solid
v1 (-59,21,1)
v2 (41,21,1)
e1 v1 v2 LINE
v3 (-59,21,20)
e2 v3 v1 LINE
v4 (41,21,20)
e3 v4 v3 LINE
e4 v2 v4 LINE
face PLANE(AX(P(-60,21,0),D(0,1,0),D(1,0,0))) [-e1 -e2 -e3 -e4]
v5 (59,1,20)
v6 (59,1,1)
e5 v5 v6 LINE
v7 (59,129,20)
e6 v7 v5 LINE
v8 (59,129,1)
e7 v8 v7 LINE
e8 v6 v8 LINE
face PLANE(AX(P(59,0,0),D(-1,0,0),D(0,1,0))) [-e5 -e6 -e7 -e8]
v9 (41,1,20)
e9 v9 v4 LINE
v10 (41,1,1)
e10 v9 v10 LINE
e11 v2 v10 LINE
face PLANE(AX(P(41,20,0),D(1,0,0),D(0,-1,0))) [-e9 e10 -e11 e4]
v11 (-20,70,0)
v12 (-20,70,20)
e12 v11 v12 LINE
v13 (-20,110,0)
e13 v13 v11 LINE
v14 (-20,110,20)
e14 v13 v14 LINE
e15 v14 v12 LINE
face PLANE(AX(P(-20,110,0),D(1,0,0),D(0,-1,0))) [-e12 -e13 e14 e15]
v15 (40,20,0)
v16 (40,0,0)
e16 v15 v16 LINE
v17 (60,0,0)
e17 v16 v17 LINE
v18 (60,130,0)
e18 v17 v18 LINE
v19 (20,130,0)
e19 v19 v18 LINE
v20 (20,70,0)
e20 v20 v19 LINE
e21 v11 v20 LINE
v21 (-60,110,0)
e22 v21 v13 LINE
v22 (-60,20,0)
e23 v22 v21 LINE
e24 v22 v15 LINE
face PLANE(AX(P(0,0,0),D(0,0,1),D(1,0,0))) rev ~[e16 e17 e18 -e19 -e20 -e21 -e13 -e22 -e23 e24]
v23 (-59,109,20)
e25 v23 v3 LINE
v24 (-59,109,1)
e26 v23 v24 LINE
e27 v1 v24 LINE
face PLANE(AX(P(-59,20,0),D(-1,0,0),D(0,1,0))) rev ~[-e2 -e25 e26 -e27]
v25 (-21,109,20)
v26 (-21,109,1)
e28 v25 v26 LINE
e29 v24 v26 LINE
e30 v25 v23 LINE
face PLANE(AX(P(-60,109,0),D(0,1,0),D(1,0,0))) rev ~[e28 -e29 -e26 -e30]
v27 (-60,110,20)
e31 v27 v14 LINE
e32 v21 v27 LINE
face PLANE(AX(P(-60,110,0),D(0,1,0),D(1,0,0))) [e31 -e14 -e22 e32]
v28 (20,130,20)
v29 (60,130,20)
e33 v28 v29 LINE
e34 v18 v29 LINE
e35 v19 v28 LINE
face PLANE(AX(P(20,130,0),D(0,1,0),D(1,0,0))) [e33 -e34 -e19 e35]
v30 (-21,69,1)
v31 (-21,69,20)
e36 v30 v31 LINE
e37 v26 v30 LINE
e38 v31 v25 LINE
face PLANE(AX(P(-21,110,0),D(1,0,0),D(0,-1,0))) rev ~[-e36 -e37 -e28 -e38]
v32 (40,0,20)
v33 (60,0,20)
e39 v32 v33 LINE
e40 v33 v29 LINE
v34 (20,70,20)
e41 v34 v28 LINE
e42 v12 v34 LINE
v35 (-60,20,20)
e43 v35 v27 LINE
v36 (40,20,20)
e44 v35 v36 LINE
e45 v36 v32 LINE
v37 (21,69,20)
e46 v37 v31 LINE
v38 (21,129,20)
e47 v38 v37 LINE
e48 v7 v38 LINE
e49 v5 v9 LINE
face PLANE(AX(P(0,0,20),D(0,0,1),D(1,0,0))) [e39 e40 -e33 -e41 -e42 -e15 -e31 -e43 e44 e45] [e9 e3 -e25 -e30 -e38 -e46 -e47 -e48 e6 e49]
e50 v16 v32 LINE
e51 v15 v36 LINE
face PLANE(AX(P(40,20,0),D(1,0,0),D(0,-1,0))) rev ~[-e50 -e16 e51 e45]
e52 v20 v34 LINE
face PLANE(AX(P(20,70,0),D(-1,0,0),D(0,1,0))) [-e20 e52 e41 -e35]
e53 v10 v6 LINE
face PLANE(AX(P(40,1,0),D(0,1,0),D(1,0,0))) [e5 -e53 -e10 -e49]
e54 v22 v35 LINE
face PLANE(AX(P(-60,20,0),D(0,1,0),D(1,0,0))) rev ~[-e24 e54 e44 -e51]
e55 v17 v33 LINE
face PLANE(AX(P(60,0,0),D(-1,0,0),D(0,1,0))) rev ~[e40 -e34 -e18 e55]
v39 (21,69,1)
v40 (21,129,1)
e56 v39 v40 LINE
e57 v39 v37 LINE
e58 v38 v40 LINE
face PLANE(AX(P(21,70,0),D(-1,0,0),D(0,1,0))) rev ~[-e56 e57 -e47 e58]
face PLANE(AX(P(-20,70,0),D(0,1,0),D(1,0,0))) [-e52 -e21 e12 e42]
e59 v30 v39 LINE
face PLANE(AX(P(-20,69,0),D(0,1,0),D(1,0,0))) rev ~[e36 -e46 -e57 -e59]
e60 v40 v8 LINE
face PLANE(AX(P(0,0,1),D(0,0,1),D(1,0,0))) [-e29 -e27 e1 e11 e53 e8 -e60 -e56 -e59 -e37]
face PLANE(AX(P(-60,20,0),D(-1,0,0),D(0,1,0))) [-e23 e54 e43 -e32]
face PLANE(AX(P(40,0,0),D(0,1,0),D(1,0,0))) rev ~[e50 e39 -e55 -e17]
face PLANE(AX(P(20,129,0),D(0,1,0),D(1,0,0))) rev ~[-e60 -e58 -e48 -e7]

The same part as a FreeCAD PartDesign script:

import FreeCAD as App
import Part
import Sketcher


def faces_at(feature, points):
    """Names of the faces that lie closest to the given points."""
    faces = feature.Shape.Faces
    near = lambda p: min(range(len(faces)), key=lambda i: faces[i].distToShape(Part.Vertex(*p))[0])
    return sorted({f"Face{near(p) + 1}" for p in points})


def add_polygon(sketch, points):
    """Adds a closed chain of lines whose ends are joined by coincident constraints."""
    first, n = sketch.GeometryCount, len(points)
    for a, b in zip(points, points[1:] + points[:1]):
        sketch.addGeometry(Part.LineSegment(App.Vector(*a, 0), App.Vector(*b, 0)), False)
    for i in range(n):
        sketch.addConstraint(Sketcher.Constraint("Coincident", first + i, 2, first + (i + 1) % n, 1))

doc = App.newDocument("Part")
body = doc.addObject("PartDesign::Body", "Body")

sketch1 = body.newObject("Sketcher::SketchObject", "Sketch")
sketch1.AttachmentSupport = (doc.getObject("XY_Plane"), [""])
sketch1.MapMode = "FlatFace"
add_polygon(sketch1, [(-60, 110), (-60, 20), (40, 20), (40, 0), (60, 0), (60, 130), (20, 130), (20, 70), (-20, 70), (-20, 110)])
sketch1.addConstraint(Sketcher.Constraint("Vertical", 0))
sketch1.addConstraint(Sketcher.Constraint("Horizontal", 1))
sketch1.addConstraint(Sketcher.Constraint("Vertical", 2))
sketch1.addConstraint(Sketcher.Constraint("Horizontal", 3))
sketch1.addConstraint(Sketcher.Constraint("Vertical", 4))
sketch1.addConstraint(Sketcher.Constraint("Horizontal", 5))
sketch1.addConstraint(Sketcher.Constraint("Vertical", 6))
sketch1.addConstraint(Sketcher.Constraint("Horizontal", 7))
sketch1.addConstraint(Sketcher.Constraint("Vertical", 8))
sketch1.addConstraint(Sketcher.Constraint("Horizontal", 9))
sketch1.addConstraint(Sketcher.Constraint("PointOnObject", 2, 2, -1))
sketch1.addConstraint(Sketcher.Constraint("Equal", 5, 7))
sketch1.addConstraint(Sketcher.Constraint("Equal", 7, 9))
sketch1.addConstraint(Sketcher.Constraint("Equal", 3, 2))
sketch1.addConstraint(Sketcher.Constraint("Equal", 9, 8))
sketch1.addConstraint(Sketcher.Constraint("DistanceX", 1, 1, 1, 2, 100.0))
sketch1.addConstraint(Sketcher.Constraint("DistanceX", 3, 1, 3, 2, 20.0))
sketch1.addConstraint(Sketcher.Constraint("DistanceY", 0, 2, 0, 1, 90.0))
sketch1.addConstraint(Sketcher.Constraint("DistanceY", 4, 1, 4, 2, 130.0))
sketch1.addConstraint(Sketcher.Constraint("DistanceX", -1, 1, 1, 2, 40.0))
pad1 = body.newObject("PartDesign::Pad", "Pad")
pad1.Profile = sketch1
pad1.Length = 20
doc.recompute()

thickness = body.newObject("PartDesign::Thickness", "Thickness")
thickness.Base = (pad1, faces_at(pad1, [(-13.333, 36.667, 20)]))
thickness.Value = 1
thickness.Reversed = True
thickness.Join = "Intersection"

doc.recompute()
